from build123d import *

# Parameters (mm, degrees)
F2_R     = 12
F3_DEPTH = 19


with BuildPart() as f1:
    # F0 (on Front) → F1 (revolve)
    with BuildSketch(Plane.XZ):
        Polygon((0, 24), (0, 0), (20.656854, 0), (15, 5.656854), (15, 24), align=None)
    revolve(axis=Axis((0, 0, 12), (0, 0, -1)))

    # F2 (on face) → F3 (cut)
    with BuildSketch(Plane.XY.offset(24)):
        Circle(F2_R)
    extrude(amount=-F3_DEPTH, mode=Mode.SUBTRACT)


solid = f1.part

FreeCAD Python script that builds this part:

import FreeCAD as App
import Part
import Sketcher

V = App.Vector
Q = App.Units.Quantity

doc = App.newDocument("Part")
body = doc.addObject("PartDesign::Body", "Body")

# Sketch on XZ plane
sketch1 = doc.addObject("Sketcher::SketchObject", "Sketch")
body.addObject(sketch1)
sketch1.AttachmentSupport = (doc.XZ_Plane, [""])
sketch1.MapMode = "FlatFace"
sketch1.addGeometry(Part.LineSegment(V(0, 24, 0), V(0, 0, 0)), False)
sketch1.addGeometry(Part.LineSegment(V(0, 0, 0), V(21, 0, 0)), False)
sketch1.addGeometry(Part.LineSegment(V(21, 0, 0), V(15, 6, 0)), False)
sketch1.addGeometry(Part.LineSegment(V(15, 6, 0), V(15, 24, 0)), False)
sketch1.addGeometry(Part.LineSegment(V(15, 24, 0), V(0, 24, 0)), False)
sketch1.addConstraint(Sketcher.Constraint("Coincident", 0, 2, 1, 1))
sketch1.addConstraint(Sketcher.Constraint("Coincident", 1, 2, 2, 1))
sketch1.addConstraint(Sketcher.Constraint("Coincident", 2, 2, 3, 1))
sketch1.addConstraint(Sketcher.Constraint("Coincident", 3, 2, 4, 1))
sketch1.addConstraint(Sketcher.Constraint("Coincident", 4, 2, 0, 1))
sketch1.addConstraint(Sketcher.Constraint("Vertical", 0))
sketch1.addConstraint(Sketcher.Constraint("Horizontal", 1))
sketch1.addConstraint(Sketcher.Constraint("Vertical", 3))
sketch1.addConstraint(Sketcher.Constraint("Horizontal", 4))
sketch1.addConstraint(Sketcher.Constraint("Coincident", 0, 2, -1, 1))
sketch1.addConstraint(Sketcher.Constraint("DistanceX", 4, 2, 4, 1, Q("15 mm")))
sketch1.addConstraint(Sketcher.Constraint("DistanceY", 0, 2, 0, 1, Q("24 mm")))
sketch1.addConstraint(Sketcher.Constraint("Angle", 2, Q("135 deg")))
sketch1.addConstraint(Sketcher.Constraint("Distance", 2, Q("8 mm")))
revolution = doc.addObject("PartDesign::Revolution", "Revolution")
body.addObject(revolution)
revolution.Profile = sketch1
revolution.ReferenceAxis = (sketch1, ["V_Axis"])
revolution.Angle = 360

# Sketch on XY plane
sketch2 = doc.addObject("Sketcher::SketchObject", "Sketch001")
body.addObject(sketch2)
sketch2.AttachmentSupport = (doc.XY_Plane, [""])
sketch2.MapMode = "FlatFace"
sketch2.AttachmentOffset = App.Placement(V(0, 0, 24), App.Rotation())
sketch2.addGeometry(Part.Circle(V(0, 0, 0), V(0, 0, 1), 12), False)
sketch2.addConstraint(Sketcher.Constraint("Coincident", 0, 3, -1, 1))
sketch2.addConstraint(Sketcher.Constraint("Diameter", 0, Q("24 mm")))
pocket1 = doc.addObject("PartDesign::Pocket", "Pocket")
body.addObject(pocket1)
pocket1.Profile = sketch2
pocket1.Length = 19

doc.recompute()
